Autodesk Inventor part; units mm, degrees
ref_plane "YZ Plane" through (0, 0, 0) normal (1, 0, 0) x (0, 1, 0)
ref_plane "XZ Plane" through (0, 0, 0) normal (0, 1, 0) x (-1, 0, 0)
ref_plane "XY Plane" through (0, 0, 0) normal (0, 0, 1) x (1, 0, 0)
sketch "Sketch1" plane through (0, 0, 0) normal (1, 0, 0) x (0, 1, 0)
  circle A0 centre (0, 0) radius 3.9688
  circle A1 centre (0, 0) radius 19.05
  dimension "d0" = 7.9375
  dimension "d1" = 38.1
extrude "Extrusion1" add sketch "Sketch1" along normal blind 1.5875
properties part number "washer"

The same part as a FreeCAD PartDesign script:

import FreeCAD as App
import Part
import Sketcher

V = App.Vector
Q = App.Units.Quantity

doc = App.newDocument("Part")
body = doc.addObject("PartDesign::Body", "Body")

sketch1 = body.newObject("Sketcher::SketchObject", "Sketch")
sketch1.AttachmentSupport = (doc.getObject("YZ_Plane"), [""])
sketch1.MapMode = "FlatFace"
sketch1.addGeometry(Part.Circle(V(0, 0, 0), V(0, 0, 1), 19.1), False)
sketch1.addGeometry(Part.Circle(V(0, 0, 0), V(0, 0, 1), 4), False)
sketch1.addConstraint(Sketcher.Constraint("Coincident", 0, 3, -1, 1))
sketch1.addConstraint(Sketcher.Constraint("Coincident", 1, 3, -1, 1))
sketch1.addConstraint(Sketcher.Constraint("Diameter", 0, Q("1.5 in")))
sketch1.addConstraint(Sketcher.Constraint("Diameter", 1, Q("0.3125 in")))
pad1 = body.newObject("PartDesign::Pad", "Pad")
pad1.Profile = sketch1
pad1.Length = Q("0.0625 in")

doc.recompute()
